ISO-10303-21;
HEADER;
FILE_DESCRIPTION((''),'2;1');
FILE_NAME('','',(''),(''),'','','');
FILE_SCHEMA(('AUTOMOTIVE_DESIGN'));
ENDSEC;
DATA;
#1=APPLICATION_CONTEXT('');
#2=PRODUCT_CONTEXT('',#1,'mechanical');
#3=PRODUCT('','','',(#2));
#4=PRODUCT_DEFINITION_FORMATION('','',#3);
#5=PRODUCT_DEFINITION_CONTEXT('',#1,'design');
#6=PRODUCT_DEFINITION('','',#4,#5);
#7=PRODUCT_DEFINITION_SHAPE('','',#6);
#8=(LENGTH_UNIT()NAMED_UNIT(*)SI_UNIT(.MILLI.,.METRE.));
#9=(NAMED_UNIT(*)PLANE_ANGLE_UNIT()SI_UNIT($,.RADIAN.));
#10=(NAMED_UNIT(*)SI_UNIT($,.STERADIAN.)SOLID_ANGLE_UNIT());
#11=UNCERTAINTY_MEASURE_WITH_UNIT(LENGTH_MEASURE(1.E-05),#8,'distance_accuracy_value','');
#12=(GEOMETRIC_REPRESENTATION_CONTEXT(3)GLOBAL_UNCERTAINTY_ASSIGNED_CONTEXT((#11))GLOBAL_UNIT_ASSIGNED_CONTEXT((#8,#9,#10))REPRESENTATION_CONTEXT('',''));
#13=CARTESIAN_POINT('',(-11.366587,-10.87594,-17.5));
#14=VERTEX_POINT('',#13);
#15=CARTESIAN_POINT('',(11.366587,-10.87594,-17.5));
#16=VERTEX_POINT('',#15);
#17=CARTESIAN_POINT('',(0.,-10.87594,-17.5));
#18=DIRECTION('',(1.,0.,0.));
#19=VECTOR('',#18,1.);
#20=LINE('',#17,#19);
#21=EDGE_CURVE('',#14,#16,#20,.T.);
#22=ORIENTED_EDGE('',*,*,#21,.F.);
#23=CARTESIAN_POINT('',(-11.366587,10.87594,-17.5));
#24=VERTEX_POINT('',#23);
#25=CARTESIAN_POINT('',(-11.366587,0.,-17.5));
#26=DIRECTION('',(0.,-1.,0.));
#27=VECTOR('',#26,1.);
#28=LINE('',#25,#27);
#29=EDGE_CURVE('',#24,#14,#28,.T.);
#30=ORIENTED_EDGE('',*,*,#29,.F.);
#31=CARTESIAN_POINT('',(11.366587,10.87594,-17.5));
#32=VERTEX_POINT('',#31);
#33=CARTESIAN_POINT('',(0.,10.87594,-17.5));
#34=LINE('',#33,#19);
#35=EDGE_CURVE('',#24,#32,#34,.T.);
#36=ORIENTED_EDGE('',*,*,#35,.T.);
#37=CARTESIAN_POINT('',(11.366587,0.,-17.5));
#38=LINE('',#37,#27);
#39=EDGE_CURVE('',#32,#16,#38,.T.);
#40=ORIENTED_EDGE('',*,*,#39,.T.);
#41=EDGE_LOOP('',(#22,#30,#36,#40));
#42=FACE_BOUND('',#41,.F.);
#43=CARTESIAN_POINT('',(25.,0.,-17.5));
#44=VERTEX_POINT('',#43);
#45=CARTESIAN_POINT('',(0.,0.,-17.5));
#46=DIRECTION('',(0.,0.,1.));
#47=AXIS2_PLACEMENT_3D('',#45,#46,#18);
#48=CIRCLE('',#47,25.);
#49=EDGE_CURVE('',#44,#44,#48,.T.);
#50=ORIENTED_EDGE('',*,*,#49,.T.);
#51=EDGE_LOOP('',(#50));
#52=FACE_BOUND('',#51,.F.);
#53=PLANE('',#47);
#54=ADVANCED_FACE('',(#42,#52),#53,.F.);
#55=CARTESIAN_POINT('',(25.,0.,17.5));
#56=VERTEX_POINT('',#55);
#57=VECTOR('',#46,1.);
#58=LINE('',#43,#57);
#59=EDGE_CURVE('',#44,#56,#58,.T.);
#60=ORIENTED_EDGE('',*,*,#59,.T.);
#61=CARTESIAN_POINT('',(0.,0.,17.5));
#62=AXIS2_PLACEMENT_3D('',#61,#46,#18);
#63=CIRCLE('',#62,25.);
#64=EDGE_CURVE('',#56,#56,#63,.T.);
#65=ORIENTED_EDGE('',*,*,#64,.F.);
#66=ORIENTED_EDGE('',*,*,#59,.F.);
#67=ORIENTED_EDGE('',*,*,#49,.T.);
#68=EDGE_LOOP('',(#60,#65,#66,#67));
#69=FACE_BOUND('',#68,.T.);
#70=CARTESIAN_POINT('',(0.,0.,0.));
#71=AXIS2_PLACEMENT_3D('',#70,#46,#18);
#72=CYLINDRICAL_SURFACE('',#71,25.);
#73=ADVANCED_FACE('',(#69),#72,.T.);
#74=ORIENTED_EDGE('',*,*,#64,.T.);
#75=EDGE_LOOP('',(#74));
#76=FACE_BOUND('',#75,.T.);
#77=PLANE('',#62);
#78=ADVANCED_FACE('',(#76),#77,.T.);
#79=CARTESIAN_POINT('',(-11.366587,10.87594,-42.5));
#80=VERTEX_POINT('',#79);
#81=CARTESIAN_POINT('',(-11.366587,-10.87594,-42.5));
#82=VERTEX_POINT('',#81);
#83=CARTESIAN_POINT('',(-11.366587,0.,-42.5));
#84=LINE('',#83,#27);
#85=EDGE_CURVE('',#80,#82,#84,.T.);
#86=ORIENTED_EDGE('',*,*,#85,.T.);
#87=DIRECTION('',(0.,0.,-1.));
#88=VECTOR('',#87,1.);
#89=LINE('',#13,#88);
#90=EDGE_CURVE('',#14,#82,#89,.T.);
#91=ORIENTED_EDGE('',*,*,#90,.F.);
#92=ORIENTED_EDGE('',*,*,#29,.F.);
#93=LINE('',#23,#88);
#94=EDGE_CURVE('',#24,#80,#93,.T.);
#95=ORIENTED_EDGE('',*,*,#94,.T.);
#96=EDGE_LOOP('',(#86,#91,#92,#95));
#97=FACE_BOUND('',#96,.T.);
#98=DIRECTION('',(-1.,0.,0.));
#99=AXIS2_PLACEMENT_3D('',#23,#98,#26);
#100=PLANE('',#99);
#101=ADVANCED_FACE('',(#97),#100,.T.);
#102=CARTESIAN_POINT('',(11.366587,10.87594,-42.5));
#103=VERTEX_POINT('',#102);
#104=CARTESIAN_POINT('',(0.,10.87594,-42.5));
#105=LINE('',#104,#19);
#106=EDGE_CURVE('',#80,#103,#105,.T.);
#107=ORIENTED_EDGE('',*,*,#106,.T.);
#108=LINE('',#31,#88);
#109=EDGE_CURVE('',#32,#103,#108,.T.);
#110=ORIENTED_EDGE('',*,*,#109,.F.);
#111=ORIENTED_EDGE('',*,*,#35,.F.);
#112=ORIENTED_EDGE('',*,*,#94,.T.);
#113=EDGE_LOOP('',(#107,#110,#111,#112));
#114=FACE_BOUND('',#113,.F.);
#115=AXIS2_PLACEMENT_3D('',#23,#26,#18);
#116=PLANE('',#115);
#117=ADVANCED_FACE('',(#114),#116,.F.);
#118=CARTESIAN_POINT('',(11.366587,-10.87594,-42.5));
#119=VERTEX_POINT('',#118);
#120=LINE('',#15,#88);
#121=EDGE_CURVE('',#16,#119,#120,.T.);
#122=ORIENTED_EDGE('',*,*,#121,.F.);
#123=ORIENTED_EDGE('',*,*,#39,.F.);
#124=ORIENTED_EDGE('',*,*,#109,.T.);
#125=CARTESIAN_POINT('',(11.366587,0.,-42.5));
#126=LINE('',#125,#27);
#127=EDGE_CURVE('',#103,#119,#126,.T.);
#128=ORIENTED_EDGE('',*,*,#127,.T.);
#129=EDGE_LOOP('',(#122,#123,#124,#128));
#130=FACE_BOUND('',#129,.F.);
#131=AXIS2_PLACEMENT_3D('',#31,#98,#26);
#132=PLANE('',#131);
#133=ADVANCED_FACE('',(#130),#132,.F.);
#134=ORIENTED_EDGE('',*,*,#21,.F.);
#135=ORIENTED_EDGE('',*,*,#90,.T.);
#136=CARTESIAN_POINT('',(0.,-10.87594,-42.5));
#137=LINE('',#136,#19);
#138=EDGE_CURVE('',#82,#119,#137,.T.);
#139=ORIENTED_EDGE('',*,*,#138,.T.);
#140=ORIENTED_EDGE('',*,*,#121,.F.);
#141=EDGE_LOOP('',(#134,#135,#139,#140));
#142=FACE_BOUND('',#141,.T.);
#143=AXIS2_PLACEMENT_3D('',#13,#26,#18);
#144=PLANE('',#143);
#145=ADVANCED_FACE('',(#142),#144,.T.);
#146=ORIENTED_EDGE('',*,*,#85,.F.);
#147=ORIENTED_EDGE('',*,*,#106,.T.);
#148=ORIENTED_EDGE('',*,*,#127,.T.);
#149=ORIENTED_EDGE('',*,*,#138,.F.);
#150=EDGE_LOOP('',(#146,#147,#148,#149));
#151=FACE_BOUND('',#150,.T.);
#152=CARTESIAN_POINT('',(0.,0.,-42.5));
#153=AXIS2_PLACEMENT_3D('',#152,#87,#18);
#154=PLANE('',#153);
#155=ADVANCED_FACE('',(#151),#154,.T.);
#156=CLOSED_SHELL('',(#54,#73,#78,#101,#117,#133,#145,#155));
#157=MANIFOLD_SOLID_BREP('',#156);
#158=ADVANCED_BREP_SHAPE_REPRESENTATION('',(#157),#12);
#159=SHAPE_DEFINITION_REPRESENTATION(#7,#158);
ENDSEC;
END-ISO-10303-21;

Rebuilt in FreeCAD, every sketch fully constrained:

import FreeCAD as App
import Part
import Sketcher

doc = App.newDocument("Part")
params = doc.addObject("Spreadsheet::Sheet", "Params")
for row, (alias, value) in enumerate([
    ("sketch1_diameter", "50 mm"),
    ("pad1_length", "35 mm"),
    ("pad2_length", "25 mm"),
], start=1):
    params.set(f"A{row}", alias)
    params.set(f"B{row}", "=" + value)
    params.setAlias(f"B{row}", alias)

body = doc.addObject("PartDesign::Body", "Body")

# Sketch on XY plane
sketch1 = body.newObject("Sketcher::SketchObject", "Sketch")
sketch1.AttachmentSupport = (doc.getObject("XY_Plane"), [""])
sketch1.MapMode = "FlatFace"
sketch1.addGeometry(Part.Circle(App.Vector(0, 0, 0), App.Vector(0, 0, 1), 25), False)
sketch1.addConstraint([
    Sketcher.Constraint("Coincident", 0, 3, -1, 1),
    Sketcher.Constraint("Diameter", 0, 50.0),
])
sketch1.setExpression("Constraints[1]", "Params.sketch1_diameter")
pad1 = body.newObject("PartDesign::Pad", "Pad")
pad1.Profile = sketch1
pad1.setExpression("Length", "Params.pad1_length")
pad1.Midplane = True

# Sketch on XY plane
sketch2 = body.newObject("Sketcher::SketchObject", "Sketch001")
sketch2.AttachmentSupport = (doc.getObject("XY_Plane"), [""])
sketch2.MapMode = "FlatFace"
sketch2.AttachmentOffset = App.Placement(App.Vector(0, 0, -17.5), App.Rotation())
sketch2.addGeometry([
    Part.LineSegment(App.Vector(-11, -11, 0), App.Vector(-11, 11, 0)),
    Part.LineSegment(App.Vector(-11, 11, 0), App.Vector(11, 11, 0)),
    Part.LineSegment(App.Vector(11, 11, 0), App.Vector(11, -11, 0)),
    Part.LineSegment(App.Vector(11, -11, 0), App.Vector(-11, -11, 0)),
], False)
sketch2.addConstraint([
    Sketcher.Constraint("Coincident", 0, 2, 1, 1),
    Sketcher.Constraint("Coincident", 1, 2, 2, 1),
    Sketcher.Constraint("Coincident", 2, 2, 3, 1),
    Sketcher.Constraint("Coincident", 3, 2, 0, 1),
    Sketcher.Constraint("Vertical", 0),
    Sketcher.Constraint("Horizontal", 1),
    Sketcher.Constraint("Vertical", 2),
    Sketcher.Constraint("Horizontal", 3),
    Sketcher.Constraint("Symmetric", 0, 2, 2, 2, -1, 1),
    Sketcher.Constraint("DistanceY", 0, 1, 0, 2, 21.751881),
    Sketcher.Constraint("DistanceX", 1, 1, 1, 2, 22.733174),
])
pad2 = body.newObject("PartDesign::Pad", "Pad001")
pad2.Profile = sketch2
pad2.setExpression("Length", "Params.pad2_length")
pad2.Reversed = True

doc.recompute()
